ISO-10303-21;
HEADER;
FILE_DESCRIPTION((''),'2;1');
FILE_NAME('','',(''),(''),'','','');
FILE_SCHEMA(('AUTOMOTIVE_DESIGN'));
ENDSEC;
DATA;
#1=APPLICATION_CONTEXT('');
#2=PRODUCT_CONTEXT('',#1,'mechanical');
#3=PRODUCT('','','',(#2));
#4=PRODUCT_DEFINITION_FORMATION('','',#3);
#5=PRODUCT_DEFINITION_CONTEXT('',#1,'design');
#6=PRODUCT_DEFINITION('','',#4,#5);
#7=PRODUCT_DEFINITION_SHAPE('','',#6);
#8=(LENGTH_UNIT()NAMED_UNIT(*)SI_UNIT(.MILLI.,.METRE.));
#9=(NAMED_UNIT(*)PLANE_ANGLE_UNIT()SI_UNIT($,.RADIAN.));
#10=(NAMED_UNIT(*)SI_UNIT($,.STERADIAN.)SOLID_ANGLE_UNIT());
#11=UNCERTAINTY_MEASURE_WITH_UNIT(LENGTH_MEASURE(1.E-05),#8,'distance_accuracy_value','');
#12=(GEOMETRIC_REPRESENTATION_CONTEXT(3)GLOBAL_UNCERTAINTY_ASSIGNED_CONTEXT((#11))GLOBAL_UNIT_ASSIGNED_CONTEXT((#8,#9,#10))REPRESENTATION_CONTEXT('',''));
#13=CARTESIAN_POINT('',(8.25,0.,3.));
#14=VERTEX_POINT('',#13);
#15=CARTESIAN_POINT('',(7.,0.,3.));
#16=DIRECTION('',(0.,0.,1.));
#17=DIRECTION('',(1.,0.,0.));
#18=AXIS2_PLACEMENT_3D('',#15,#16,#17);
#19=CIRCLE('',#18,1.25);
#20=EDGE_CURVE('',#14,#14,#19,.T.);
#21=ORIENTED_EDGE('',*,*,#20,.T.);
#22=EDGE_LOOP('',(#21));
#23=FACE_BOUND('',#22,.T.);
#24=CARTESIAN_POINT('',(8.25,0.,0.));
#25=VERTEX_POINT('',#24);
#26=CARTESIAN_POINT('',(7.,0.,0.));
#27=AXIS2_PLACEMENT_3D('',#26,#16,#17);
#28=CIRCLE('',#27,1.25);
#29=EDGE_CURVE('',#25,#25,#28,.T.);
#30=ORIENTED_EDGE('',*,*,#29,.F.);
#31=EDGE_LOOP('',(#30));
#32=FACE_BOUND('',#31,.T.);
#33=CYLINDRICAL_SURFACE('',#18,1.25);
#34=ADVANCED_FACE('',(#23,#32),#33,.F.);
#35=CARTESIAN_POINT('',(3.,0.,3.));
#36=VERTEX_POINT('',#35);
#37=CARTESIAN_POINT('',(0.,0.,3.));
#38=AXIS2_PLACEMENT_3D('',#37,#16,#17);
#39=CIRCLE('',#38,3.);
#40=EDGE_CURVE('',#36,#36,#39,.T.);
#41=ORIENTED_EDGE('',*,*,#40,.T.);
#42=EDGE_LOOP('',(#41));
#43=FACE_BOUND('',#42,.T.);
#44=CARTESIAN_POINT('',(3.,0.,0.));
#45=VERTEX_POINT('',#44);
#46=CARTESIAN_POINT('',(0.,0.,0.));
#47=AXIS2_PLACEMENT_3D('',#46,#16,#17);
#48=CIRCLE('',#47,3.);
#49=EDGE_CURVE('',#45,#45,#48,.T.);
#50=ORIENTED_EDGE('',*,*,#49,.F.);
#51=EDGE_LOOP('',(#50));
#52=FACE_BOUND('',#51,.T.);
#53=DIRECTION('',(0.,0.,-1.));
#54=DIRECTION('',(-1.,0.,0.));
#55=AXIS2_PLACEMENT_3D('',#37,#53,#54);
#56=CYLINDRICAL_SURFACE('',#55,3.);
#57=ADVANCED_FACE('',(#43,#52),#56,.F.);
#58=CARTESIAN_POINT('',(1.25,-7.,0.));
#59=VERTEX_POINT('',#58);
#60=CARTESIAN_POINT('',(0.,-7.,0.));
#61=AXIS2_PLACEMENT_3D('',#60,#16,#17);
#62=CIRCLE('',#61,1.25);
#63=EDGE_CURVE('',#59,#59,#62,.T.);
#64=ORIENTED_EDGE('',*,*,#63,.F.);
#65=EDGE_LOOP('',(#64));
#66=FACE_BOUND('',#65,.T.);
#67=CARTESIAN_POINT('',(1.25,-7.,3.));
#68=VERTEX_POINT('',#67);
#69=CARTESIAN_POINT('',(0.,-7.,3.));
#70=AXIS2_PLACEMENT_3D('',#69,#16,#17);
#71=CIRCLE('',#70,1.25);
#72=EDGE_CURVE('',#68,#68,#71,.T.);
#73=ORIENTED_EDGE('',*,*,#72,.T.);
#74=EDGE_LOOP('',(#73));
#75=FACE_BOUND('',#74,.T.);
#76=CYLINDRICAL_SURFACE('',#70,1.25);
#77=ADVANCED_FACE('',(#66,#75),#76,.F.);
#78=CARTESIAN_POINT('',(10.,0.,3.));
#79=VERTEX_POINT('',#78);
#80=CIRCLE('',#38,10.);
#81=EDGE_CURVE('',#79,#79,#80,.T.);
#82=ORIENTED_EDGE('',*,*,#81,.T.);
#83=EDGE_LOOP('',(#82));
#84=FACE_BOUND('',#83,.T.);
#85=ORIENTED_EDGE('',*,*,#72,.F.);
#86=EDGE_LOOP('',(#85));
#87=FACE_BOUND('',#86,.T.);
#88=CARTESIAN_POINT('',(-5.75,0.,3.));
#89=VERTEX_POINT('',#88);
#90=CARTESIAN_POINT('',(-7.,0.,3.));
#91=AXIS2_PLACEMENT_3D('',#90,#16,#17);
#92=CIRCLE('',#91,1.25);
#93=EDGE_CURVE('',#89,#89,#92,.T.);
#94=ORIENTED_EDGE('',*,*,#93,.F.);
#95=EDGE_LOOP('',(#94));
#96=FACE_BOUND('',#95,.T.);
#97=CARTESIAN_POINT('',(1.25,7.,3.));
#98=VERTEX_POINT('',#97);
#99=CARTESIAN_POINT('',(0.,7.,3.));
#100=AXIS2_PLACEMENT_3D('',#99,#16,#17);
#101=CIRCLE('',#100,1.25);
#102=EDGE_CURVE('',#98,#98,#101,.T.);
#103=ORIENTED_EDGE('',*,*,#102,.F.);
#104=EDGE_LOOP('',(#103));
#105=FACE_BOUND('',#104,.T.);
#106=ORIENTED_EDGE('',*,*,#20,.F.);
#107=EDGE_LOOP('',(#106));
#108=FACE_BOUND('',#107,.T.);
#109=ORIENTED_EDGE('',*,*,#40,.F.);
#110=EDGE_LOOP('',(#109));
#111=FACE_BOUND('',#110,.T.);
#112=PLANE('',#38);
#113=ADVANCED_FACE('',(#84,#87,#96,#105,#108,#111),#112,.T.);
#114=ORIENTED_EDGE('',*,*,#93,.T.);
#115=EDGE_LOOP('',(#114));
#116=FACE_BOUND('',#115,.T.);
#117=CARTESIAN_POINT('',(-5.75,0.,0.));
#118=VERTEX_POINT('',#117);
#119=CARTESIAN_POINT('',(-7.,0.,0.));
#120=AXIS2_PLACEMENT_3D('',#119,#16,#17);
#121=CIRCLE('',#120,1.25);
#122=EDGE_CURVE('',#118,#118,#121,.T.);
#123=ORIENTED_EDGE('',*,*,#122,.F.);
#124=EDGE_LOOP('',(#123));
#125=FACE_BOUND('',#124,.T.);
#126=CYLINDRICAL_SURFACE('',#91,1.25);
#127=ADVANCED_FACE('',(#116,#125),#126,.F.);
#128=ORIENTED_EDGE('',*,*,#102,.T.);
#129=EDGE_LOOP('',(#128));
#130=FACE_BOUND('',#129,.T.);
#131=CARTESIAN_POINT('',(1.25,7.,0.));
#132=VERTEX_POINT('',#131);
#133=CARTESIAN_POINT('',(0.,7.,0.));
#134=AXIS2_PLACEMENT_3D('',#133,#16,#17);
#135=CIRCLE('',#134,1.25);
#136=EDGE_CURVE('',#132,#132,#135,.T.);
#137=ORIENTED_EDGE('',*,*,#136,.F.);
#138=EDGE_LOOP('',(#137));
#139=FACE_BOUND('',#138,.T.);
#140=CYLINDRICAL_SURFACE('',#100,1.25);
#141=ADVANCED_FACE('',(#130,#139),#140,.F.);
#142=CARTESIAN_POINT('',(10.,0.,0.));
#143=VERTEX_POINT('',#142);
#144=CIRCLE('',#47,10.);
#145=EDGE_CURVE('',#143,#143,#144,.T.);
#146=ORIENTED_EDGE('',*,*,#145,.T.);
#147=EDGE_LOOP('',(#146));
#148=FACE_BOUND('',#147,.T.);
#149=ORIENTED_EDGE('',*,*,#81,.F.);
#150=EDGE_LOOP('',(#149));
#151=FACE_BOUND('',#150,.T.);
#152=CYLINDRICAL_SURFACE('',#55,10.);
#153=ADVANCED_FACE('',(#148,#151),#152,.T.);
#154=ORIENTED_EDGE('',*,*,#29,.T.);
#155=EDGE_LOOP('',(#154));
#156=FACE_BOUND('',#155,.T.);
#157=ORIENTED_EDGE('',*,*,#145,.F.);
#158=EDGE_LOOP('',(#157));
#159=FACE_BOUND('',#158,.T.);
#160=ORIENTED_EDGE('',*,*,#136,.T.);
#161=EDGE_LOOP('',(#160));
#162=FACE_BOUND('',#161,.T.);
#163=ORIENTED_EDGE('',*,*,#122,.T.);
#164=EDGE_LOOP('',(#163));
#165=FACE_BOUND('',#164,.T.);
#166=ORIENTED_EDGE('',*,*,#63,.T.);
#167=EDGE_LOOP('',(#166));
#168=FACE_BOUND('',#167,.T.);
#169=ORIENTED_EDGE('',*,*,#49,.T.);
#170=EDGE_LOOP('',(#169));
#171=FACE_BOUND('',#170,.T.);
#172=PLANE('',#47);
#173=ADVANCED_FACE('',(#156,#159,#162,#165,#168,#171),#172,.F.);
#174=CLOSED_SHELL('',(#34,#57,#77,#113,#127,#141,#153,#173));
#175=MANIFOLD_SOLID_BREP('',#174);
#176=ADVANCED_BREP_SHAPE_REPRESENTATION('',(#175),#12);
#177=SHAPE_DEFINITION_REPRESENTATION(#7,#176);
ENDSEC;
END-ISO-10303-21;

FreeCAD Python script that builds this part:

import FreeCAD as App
import Part
import Sketcher

doc = App.newDocument("Part")
body = doc.addObject("PartDesign::Body", "Body")

# Sketch on XY plane
sketch1 = doc.addObject("Sketcher::SketchObject", "Sketch")
body.addObject(sketch1)
sketch1.AttachmentSupport = (doc.XY_Plane, [""])
sketch1.MapMode = "FlatFace"
sketch1.addGeometry([
    Part.Circle(App.Vector(0, 0, 0), App.Vector(0, 0, 1), 10),
    Part.Circle(App.Vector(0, 0, 0), App.Vector(0, 0, 1), 3),
], False)
sketch1.addConstraint([
    Sketcher.Constraint("Coincident", 0, 3, -1, 1),
    Sketcher.Constraint("Coincident", 1, 3, -1, 1),
    Sketcher.Constraint("Diameter", 0, 20.0),
    Sketcher.Constraint("Diameter", 1, 6.0),
])
pad1 = doc.addObject("PartDesign::Pad", "Pad")
body.addObject(pad1)
pad1.Profile = sketch1
pad1.Length = 3

# Sketch on XY plane
sketch2 = doc.addObject("Sketcher::SketchObject", "Sketch001")
body.addObject(sketch2)
sketch2.AttachmentSupport = (doc.XY_Plane, [""])
sketch2.MapMode = "FlatFace"
sketch2.AttachmentOffset = App.Placement(App.Vector(0, 0, 3), App.Rotation())
sketch2.addGeometry([
    Part.Circle(App.Vector(0, 7, 0), App.Vector(0, 0, 1), 1.2),
    Part.Circle(App.Vector(-7, 0, 0), App.Vector(0, 0, 1), 1.2),
    Part.Circle(App.Vector(0, -7, 0), App.Vector(0, 0, 1), 1.2),
    Part.Circle(App.Vector(7, 0, 0), App.Vector(0, 0, 1), 1.2),
], False)
sketch2.addConstraint([
    Sketcher.Constraint("Equal", 0, 1),
    Sketcher.Constraint("Equal", 1, 2),
    Sketcher.Constraint("Equal", 2, 3),
    Sketcher.Constraint("Symmetric", 0, 3, 2, 3, -1, 1),
    Sketcher.Constraint("Symmetric", 1, 3, 3, 3, -1, 1),
    Sketcher.Constraint("PointOnObject", 0, 3, -2),
    Sketcher.Constraint("PointOnObject", 1, 3, -1),
    Sketcher.Constraint("Diameter", 0, 2.5),
    Sketcher.Constraint("DistanceY", -1, 1, 0, 3, 7.0),
    Sketcher.Constraint("DistanceX", 1, 3, -1, 1, 7.0),
])
doc.recompute()
hole = doc.addObject("PartDesign::Hole", "Hole")
body.addObject(hole)
hole.Profile = sketch2
hole.ThreadType = "None"
hole.Diameter = 2.5
hole.DepthType = "ThroughAll"

doc.recompute()
